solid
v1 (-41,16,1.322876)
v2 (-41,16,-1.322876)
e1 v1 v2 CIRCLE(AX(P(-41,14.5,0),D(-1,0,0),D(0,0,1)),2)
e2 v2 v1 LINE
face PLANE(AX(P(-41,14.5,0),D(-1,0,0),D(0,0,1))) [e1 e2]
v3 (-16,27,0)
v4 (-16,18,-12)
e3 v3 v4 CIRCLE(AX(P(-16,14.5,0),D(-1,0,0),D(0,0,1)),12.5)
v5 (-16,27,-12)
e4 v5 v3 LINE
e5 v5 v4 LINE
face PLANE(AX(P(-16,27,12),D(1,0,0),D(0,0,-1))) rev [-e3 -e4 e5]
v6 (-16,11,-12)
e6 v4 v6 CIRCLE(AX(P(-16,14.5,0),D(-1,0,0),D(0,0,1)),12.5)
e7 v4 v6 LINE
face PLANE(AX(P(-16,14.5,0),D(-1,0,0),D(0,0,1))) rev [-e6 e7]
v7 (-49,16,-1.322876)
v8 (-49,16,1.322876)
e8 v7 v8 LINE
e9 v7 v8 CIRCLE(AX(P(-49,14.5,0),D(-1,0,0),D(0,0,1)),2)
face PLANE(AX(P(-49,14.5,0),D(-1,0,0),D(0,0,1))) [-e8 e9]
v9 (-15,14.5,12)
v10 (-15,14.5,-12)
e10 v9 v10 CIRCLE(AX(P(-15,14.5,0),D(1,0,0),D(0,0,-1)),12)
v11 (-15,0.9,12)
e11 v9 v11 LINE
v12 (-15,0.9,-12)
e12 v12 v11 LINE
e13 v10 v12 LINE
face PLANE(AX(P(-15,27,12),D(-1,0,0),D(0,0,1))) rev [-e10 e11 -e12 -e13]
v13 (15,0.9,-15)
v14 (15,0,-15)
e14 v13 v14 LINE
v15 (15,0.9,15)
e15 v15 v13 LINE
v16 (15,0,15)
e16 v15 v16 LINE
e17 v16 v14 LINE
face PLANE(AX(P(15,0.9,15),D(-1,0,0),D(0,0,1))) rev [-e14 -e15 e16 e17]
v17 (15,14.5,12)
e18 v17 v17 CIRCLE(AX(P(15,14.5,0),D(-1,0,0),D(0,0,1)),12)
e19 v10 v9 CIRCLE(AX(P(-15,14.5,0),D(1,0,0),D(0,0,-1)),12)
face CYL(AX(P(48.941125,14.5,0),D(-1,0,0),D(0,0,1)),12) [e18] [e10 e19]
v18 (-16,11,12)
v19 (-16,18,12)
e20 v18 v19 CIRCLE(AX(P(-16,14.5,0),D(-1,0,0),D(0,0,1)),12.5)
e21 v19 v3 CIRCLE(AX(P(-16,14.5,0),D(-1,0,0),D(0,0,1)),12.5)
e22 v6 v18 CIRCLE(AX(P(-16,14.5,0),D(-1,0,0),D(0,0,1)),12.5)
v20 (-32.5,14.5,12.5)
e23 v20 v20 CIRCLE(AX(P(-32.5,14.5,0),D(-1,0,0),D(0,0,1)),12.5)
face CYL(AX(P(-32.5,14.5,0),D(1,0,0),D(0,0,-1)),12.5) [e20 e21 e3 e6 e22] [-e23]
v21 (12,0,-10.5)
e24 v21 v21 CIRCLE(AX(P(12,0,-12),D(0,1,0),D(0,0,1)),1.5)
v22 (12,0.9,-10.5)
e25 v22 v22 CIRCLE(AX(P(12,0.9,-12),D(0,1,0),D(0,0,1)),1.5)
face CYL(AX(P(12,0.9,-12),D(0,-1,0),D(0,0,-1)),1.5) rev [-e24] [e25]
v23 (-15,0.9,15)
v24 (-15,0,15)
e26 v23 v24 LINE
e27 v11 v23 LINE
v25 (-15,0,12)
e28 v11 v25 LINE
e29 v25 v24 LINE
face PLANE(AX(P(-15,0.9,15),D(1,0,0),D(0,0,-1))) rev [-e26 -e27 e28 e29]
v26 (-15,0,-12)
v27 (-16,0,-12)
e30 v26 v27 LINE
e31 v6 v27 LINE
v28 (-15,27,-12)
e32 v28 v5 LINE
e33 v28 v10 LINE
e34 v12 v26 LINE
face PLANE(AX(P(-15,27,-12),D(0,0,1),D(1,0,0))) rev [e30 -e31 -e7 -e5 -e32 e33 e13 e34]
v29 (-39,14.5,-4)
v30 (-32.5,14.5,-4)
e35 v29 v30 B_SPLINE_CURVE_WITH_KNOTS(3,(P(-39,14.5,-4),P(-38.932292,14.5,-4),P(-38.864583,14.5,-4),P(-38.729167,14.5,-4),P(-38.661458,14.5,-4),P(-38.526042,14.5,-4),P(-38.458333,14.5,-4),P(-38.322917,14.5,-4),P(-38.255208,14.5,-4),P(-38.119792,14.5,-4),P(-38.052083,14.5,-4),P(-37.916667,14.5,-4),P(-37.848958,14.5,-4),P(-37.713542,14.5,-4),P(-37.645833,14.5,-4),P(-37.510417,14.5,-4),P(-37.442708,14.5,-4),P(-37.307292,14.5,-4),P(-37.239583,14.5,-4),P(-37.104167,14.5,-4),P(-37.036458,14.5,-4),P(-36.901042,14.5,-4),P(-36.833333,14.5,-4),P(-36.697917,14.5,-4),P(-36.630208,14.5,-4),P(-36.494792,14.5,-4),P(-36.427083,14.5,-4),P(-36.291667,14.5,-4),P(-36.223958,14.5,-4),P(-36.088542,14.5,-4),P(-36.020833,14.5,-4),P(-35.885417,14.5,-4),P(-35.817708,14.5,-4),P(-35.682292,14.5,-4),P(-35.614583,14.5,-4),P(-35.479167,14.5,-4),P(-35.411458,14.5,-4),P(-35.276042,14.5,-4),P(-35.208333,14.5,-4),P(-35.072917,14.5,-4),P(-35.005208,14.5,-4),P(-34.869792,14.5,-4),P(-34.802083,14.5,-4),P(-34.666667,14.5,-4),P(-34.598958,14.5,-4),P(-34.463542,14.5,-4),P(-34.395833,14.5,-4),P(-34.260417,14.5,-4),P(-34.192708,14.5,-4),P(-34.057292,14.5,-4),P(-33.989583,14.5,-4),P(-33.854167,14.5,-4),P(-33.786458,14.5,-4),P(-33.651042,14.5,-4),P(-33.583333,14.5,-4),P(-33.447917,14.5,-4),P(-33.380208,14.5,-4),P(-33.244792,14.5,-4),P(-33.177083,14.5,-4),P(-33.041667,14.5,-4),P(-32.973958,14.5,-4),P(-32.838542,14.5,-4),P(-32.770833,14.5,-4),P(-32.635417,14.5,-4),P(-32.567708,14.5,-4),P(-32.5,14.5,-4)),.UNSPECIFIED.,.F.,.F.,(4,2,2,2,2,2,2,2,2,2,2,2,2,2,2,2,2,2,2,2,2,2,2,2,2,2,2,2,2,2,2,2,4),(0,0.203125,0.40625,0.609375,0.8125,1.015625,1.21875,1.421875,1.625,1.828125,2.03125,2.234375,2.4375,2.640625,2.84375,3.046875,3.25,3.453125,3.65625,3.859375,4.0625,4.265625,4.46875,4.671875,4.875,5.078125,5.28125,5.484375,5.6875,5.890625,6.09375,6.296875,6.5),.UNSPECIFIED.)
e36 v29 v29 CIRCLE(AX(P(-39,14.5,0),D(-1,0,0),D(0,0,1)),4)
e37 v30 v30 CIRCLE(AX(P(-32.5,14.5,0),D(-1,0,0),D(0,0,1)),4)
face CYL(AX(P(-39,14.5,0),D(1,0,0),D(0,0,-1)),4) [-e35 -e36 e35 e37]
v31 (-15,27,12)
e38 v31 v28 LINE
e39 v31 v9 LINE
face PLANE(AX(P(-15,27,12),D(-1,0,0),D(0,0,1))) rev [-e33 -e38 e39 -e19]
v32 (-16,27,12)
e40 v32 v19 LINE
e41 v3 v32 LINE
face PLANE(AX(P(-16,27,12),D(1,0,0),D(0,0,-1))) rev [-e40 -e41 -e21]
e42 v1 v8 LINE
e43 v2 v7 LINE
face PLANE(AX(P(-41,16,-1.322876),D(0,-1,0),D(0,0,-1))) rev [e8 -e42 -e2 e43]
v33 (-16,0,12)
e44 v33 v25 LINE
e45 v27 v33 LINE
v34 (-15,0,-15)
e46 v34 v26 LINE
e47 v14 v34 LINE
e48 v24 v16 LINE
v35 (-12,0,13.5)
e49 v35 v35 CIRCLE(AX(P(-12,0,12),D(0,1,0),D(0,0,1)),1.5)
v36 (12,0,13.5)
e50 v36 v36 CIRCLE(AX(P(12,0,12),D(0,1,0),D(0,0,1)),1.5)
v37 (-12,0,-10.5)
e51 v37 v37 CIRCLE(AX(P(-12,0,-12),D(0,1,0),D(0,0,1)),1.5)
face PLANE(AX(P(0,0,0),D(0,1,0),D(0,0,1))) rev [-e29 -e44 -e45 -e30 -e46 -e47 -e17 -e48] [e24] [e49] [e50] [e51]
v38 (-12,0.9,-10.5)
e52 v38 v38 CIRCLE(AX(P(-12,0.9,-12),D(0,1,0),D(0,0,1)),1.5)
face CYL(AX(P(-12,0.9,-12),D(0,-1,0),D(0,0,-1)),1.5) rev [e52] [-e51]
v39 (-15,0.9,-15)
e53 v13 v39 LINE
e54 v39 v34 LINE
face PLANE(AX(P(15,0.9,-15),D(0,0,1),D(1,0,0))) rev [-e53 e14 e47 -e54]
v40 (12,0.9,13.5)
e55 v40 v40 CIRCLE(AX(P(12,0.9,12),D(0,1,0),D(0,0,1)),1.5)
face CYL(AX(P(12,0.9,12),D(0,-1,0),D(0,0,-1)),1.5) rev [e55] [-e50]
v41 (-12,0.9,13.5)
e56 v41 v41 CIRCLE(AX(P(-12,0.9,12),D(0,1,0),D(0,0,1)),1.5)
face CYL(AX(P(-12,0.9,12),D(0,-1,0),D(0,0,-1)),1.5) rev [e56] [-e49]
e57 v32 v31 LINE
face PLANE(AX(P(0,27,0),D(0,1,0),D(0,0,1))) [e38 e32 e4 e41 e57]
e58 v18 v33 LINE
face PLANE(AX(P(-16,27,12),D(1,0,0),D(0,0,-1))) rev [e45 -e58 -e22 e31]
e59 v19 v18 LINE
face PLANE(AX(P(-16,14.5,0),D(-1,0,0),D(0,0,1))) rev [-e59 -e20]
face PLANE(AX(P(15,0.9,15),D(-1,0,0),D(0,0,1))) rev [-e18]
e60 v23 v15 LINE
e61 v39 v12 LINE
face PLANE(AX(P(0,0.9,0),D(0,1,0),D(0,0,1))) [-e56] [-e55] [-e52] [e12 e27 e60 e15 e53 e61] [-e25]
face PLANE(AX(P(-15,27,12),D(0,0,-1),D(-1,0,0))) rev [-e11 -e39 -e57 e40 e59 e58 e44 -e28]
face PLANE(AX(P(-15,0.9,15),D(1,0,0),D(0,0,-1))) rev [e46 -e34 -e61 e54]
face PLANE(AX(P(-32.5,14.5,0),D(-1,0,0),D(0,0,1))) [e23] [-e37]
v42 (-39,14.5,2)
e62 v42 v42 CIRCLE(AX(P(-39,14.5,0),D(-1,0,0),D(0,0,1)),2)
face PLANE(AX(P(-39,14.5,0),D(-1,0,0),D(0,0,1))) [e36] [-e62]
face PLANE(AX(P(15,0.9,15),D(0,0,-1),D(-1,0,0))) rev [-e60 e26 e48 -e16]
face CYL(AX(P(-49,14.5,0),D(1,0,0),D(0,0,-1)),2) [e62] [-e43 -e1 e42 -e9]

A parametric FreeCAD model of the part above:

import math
import FreeCAD as App
import Part
import Sketcher

V = App.Vector
Q = App.Units.Quantity


def add_polygon(sketch, points):
    """Adds a closed chain of lines whose ends are joined by coincident constraints."""
    first, n = sketch.GeometryCount, len(points)
    for a, b in zip(points, points[1:] + points[:1]):
        sketch.addGeometry(Part.LineSegment(App.Vector(*a, 0), App.Vector(*b, 0)), False)
    for i in range(n):
        sketch.addConstraint(Sketcher.Constraint("Coincident", first + i, 2, first + (i + 1) % n, 1))

doc = App.newDocument("Part")
body = doc.addObject("PartDesign::Body", "Body")

# Sketch on XZ plane
sketch1 = body.newObject("Sketcher::SketchObject", "Sketch")
sketch1.AttachmentSupport = (doc.getObject("XZ_Plane"), [""])
sketch1.MapMode = "FlatFace"
add_polygon(sketch1, [(-15, -15), (-15, 15), (15, 15), (15, -15)])  # lines 0-3
sketch1.addGeometry(Part.Circle(V(-12, 12, 0), V(0, 0, 1), 1.5), False)  # 4
sketch1.addGeometry(Part.Circle(V(12, 12, 0), V(0, 0, 1), 1.5), False)  # 5
sketch1.addGeometry(Part.Circle(V(-12, -12, 0), V(0, 0, 1), 1.5), False)  # 6
sketch1.addGeometry(Part.Circle(V(12, -12, 0), V(0, 0, 1), 1.5), False)  # 7
sketch1.addConstraint(Sketcher.Constraint("Vertical", 0))
sketch1.addConstraint(Sketcher.Constraint("Horizontal", 1))
sketch1.addConstraint(Sketcher.Constraint("Vertical", 2))
sketch1.addConstraint(Sketcher.Constraint("Horizontal", 3))
sketch1.addConstraint(Sketcher.Constraint("Equal", 4, 5))
sketch1.addConstraint(Sketcher.Constraint("Equal", 5, 6))
sketch1.addConstraint(Sketcher.Constraint("Equal", 6, 7))
sketch1.addConstraint(Sketcher.Constraint("Symmetric", 5, 3, 6, 3, -1, 1))
sketch1.addConstraint(Sketcher.Constraint("Symmetric", 4, 3, 7, 3, -1, 1))
sketch1.addConstraint(Sketcher.Constraint("Symmetric", 0, 2, 2, 2, -1, 1))
sketch1.addConstraint(Sketcher.Constraint("Symmetric", 4, 3, 5, 3, -2))
sketch1.addConstraint(Sketcher.Constraint("Equal", 3, 0))
sketch1.addConstraint(Sketcher.Constraint("Diameter", 4, Q("3 mm")))
sketch1.addConstraint(Sketcher.Constraint("DistanceX", 1, 1, 1, 2, Q("30 mm")))
sketch1.addConstraint(Sketcher.Constraint("DistanceX", 4, 3, -1, 1, Q("12 mm")))
sketch1.addConstraint(Sketcher.Constraint("DistanceY", -1, 1, 4, 3, Q("12 mm")))
pad1 = body.newObject("PartDesign::Pad", "Pad")
pad1.Profile = sketch1
pad1.Length = 0.9
pad1.Reversed = True

# Sketch on XZ plane
sketch2 = body.newObject("Sketcher::SketchObject", "Sketch001")
sketch2.AttachmentSupport = (doc.getObject("XZ_Plane"), [""])
sketch2.MapMode = "FlatFace"
add_polygon(sketch2, [(-16, -12), (-16, 12), (-15, 12), (-15, -12)])  # lines 0-3
sketch2.addConstraint(Sketcher.Constraint("Vertical", 0))
sketch2.addConstraint(Sketcher.Constraint("Horizontal", 1))
sketch2.addConstraint(Sketcher.Constraint("Vertical", 2))
sketch2.addConstraint(Sketcher.Constraint("Horizontal", 3))
sketch2.addConstraint(Sketcher.Constraint("DistanceX", 1, 1, 1, 2, Q("1 mm")))
sketch2.addConstraint(Sketcher.Constraint("DistanceY", 0, 1, 0, 2, Q("24 mm")))
sketch2.addConstraint(Sketcher.Constraint("DistanceX", 0, 2, -1, 1, Q("16 mm")))
sketch2.addConstraint(Sketcher.Constraint("DistanceY", -1, 1, 0, 2, Q("12 mm")))
pad2 = body.newObject("PartDesign::Pad", "Pad001")
pad2.Profile = sketch2
pad2.Length = 27
pad2.Reversed = True

# Sketch on YZ plane
sketch3 = body.newObject("Sketcher::SketchObject", "Sketch002")
sketch3.AttachmentSupport = (doc.getObject("YZ_Plane"), [""])
sketch3.MapMode = "FlatFace"
sketch3.AttachmentOffset = App.Placement(V(0, 0, -15), App.Rotation())
sketch3.addGeometry(Part.Circle(V(14.5, 0, 0), V(0, 0, 1), 12), False)
sketch3.addConstraint(Sketcher.Constraint("PointOnObject", 0, 3, -1))
sketch3.addConstraint(Sketcher.Constraint("Diameter", 0, Q("24 mm")))
sketch3.addConstraint(Sketcher.Constraint("DistanceX", -1, 1, 0, 3, Q("14.5 mm")))
pad3 = body.newObject("PartDesign::Pad", "Pad002")
pad3.Profile = sketch3
pad3.Length = 30

# Sketch on YZ plane
sketch4 = body.newObject("Sketcher::SketchObject", "Sketch003")
sketch4.AttachmentSupport = (doc.getObject("YZ_Plane"), [""])
sketch4.MapMode = "FlatFace"
sketch4.AttachmentOffset = App.Placement(V(0, 0, -16), App.Rotation())
sketch4.addGeometry(Part.Circle(V(14.5, 0, 0), V(0, 0, 1), 12.5), False)
sketch4.addConstraint(Sketcher.Constraint("PointOnObject", 0, 3, -1))
sketch4.addConstraint(Sketcher.Constraint("Diameter", 0, Q("25 mm")))
sketch4.addConstraint(Sketcher.Constraint("DistanceX", -1, 1, 0, 3, Q("14.5 mm")))
pad4 = body.newObject("PartDesign::Pad", "Pad003")
pad4.Profile = sketch4
pad4.Length = 16.5
pad4.Reversed = True

# Sketch on YZ plane
sketch5 = body.newObject("Sketcher::SketchObject", "Sketch004")
sketch5.AttachmentSupport = (doc.getObject("YZ_Plane"), [""])
sketch5.MapMode = "FlatFace"
sketch5.AttachmentOffset = App.Placement(V(0, 0, -32.5), App.Rotation())
sketch5.addGeometry(Part.Circle(V(14.5, 0, 0), V(0, 0, 1), 4), False)
sketch5.addConstraint(Sketcher.Constraint("PointOnObject", 0, 3, -1))
sketch5.addConstraint(Sketcher.Constraint("Diameter", 0, Q("8 mm")))
sketch5.addConstraint(Sketcher.Constraint("DistanceX", -1, 1, 0, 3, Q("14.5 mm")))
pad5 = body.newObject("PartDesign::Pad", "Pad004")
pad5.Profile = sketch5
pad5.Length = 6.5
pad5.Reversed = True

# Sketch on YZ plane
sketch6 = body.newObject("Sketcher::SketchObject", "Sketch005")
sketch6.AttachmentSupport = (doc.getObject("YZ_Plane"), [""])
sketch6.MapMode = "FlatFace"
sketch6.AttachmentOffset = App.Placement(V(0, 0, -39), App.Rotation())
sketch6.addGeometry(Part.Circle(V(14.5, 0, 0), V(0, 0, 1), 2), False)
sketch6.addConstraint(Sketcher.Constraint("PointOnObject", 0, 3, -1))
sketch6.addConstraint(Sketcher.Constraint("Diameter", 0, Q("4 mm")))
sketch6.addConstraint(Sketcher.Constraint("DistanceX", -1, 1, 0, 3, Q("14.5 mm")))
pad6 = body.newObject("PartDesign::Pad", "Pad005")
pad6.Profile = sketch6
pad6.Length = 10
pad6.Reversed = True

# Sketch on YZ plane
sketch7 = body.newObject("Sketcher::SketchObject", "Sketch006")
sketch7.AttachmentSupport = (doc.getObject("YZ_Plane"), [""])
sketch7.MapMode = "FlatFace"
sketch7.AttachmentOffset = App.Placement(V(0, 0, -41), App.Rotation())
sketch7.addGeometry(Part.LineSegment(V(16, -1.322876, 0), V(16, 1.322876, 0)), False)
sketch7.addGeometry(Part.ArcOfCircle(Part.Circle(V(14.5, 0, 0), V(0, 0, 1), 2), math.radians(-41.409622), math.radians(41.409622)), False)
sketch7.addConstraint(Sketcher.Constraint("Coincident", 0, 1, 1, 1))
sketch7.addConstraint(Sketcher.Constraint("Coincident", 1, 2, 0, 2))
sketch7.addConstraint(Sketcher.Constraint("Vertical", 0))
sketch7.addConstraint(Sketcher.Constraint("PointOnObject", 1, 3, -1))
sketch7.addConstraint(Sketcher.Constraint("Radius", 1, Q("2 mm")))
sketch7.addConstraint(Sketcher.Constraint("DistanceX", -1, 1, 0, 1, Q("16 mm")))
sketch7.addConstraint(Sketcher.Constraint("DistanceX", -1, 1, 1, 3, Q("14.5 mm")))
pocket1 = body.newObject("PartDesign::Pocket", "Pocket")
pocket1.Profile = sketch7
pocket1.Length = 8

doc.recompute()
